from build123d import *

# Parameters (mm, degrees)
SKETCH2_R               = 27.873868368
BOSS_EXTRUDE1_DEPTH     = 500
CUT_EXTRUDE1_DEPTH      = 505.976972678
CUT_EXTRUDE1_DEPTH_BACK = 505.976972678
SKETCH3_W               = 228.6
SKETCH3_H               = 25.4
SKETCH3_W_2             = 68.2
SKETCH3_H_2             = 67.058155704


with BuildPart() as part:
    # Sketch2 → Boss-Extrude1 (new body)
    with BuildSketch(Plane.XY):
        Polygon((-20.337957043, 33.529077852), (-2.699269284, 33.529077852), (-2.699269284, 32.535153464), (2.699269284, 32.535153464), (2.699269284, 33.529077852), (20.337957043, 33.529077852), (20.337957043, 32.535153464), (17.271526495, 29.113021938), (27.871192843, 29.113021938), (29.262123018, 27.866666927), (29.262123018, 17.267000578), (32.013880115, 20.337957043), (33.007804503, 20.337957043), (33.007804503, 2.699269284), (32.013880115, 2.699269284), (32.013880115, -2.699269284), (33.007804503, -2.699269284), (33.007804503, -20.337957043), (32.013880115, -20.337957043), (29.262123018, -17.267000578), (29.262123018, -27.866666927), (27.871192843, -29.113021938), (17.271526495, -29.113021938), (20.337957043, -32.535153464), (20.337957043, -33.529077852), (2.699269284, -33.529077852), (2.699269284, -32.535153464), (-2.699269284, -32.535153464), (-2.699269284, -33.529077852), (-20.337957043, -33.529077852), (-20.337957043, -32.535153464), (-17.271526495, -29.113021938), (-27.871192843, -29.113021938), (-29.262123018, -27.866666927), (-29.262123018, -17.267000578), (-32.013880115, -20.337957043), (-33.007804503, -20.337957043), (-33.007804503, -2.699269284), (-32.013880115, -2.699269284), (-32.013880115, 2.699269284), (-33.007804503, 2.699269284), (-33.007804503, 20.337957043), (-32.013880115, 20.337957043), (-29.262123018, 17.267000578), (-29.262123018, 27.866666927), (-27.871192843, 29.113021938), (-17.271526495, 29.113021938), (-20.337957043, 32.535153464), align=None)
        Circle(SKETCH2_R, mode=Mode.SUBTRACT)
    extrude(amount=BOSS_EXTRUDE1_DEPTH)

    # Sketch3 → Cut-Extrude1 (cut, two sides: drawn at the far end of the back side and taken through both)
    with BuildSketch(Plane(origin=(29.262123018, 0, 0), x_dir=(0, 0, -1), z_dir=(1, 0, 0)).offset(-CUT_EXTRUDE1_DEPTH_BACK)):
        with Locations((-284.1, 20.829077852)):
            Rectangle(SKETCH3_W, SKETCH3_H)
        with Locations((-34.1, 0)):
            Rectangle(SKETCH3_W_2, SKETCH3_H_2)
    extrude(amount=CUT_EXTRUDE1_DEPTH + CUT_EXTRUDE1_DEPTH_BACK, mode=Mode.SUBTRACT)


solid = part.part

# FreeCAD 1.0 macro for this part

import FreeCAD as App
import Part
import Sketcher
from FreeCAD import Vector

doc = App.newDocument("Part")
params = doc.addObject("Spreadsheet::Sheet", "Params")
for row, (alias, value) in enumerate([
    ("pad1_length", "500 mm"),
    ("sketch2_width", "25.4 mm"),
    ("sketch2_height", "228.6 mm"),
    ("sketch2_height2", "68.2 mm"),
], start=1):
    params.set(f"A{row}", alias)
    params.set(f"B{row}", "=" + value)
    params.setAlias(f"B{row}", alias)

body = doc.addObject("PartDesign::Body", "Body")

sketch1 = doc.addObject("Sketcher::SketchObject", "Sketch")
body.addObject(sketch1)
sketch1.AttachmentSupport = (doc.XY_Plane, [""])
sketch1.MapMode = "FlatFace"
sketch1.addGeometry([
    Part.LineSegment(Vector(-2.7, 33.5, 0), Vector(-20.3, 33.5, 0)),
    Part.LineSegment(Vector(-20.3, 33.5, 0), Vector(-20.3, 32.5, 0)),
    Part.LineSegment(Vector(-20.3, 32.5, 0), Vector(-17.3, 29.1, 0)),
    Part.LineSegment(Vector(-17.3, 29.1, 0), Vector(-27.9, 29.1, 0)),
    Part.LineSegment(Vector(-27.9, 29.1, 0), Vector(-29.3, 27.9, 0)),
    Part.LineSegment(Vector(-29.3, 27.9, 0), Vector(-29.3, 17.3, 0)),
    Part.LineSegment(Vector(-29.3, 17.3, 0), Vector(-32, 20.3, 0)),
    Part.LineSegment(Vector(-32, 20.3, 0), Vector(-33, 20.3, 0)),
    Part.LineSegment(Vector(-33, 20.3, 0), Vector(-33, 2.7, 0)),
    Part.LineSegment(Vector(-33, 2.7, 0), Vector(-32, 2.7, 0)),
    Part.LineSegment(Vector(-32, 2.7, 0), Vector(-32, -2.7, 0)),
    Part.LineSegment(Vector(-32, -2.7, 0), Vector(-33, -2.7, 0)),
    Part.LineSegment(Vector(-33, -2.7, 0), Vector(-33, -20.3, 0)),
    Part.LineSegment(Vector(-33, -20.3, 0), Vector(-32, -20.3, 0)),
    Part.LineSegment(Vector(-32, -20.3, 0), Vector(-29.3, -17.3, 0)),
    Part.LineSegment(Vector(-29.3, -17.3, 0), Vector(-29.3, -27.9, 0)),
    Part.LineSegment(Vector(-29.3, -27.9, 0), Vector(-27.9, -29.1, 0)),
    Part.LineSegment(Vector(-27.9, -29.1, 0), Vector(-17.3, -29.1, 0)),
    Part.LineSegment(Vector(-17.3, -29.1, 0), Vector(-20.3, -32.5, 0)),
    Part.LineSegment(Vector(-20.3, -32.5, 0), Vector(-20.3, -33.5, 0)),
    Part.LineSegment(Vector(-20.3, -33.5, 0), Vector(-2.7, -33.5, 0)),
    Part.LineSegment(Vector(-2.7, -33.5, 0), Vector(-2.7, -32.5, 0)),
    Part.LineSegment(Vector(-2.7, -32.5, 0), Vector(2.7, -32.5, 0)),
    Part.LineSegment(Vector(2.7, -32.5, 0), Vector(2.7, -33.5, 0)),
    Part.LineSegment(Vector(2.7, -33.5, 0), Vector(20.3, -33.5, 0)),
    Part.LineSegment(Vector(20.3, -33.5, 0), Vector(20.3, -32.5, 0)),
    Part.LineSegment(Vector(20.3, -32.5, 0), Vector(17.3, -29.1, 0)),
    Part.LineSegment(Vector(17.3, -29.1, 0), Vector(27.9, -29.1, 0)),
    Part.LineSegment(Vector(27.9, -29.1, 0), Vector(29.3, -27.9, 0)),
    Part.LineSegment(Vector(29.3, -27.9, 0), Vector(29.3, -17.3, 0)),
    Part.LineSegment(Vector(29.3, -17.3, 0), Vector(32, -20.3, 0)),
    Part.LineSegment(Vector(32, -20.3, 0), Vector(33, -20.3, 0)),
    Part.LineSegment(Vector(33, -20.3, 0), Vector(33, -2.7, 0)),
    Part.LineSegment(Vector(33, -2.7, 0), Vector(32, -2.7, 0)),
    Part.LineSegment(Vector(32, -2.7, 0), Vector(32, 2.7, 0)),
    Part.LineSegment(Vector(32, 2.7, 0), Vector(33, 2.7, 0)),
    Part.LineSegment(Vector(33, 2.7, 0), Vector(33, 20.3, 0)),
    Part.LineSegment(Vector(33, 20.3, 0), Vector(32, 20.3, 0)),
    Part.LineSegment(Vector(32, 20.3, 0), Vector(29.3, 17.3, 0)),
    Part.LineSegment(Vector(29.3, 17.3, 0), Vector(29.3, 27.9, 0)),
    Part.LineSegment(Vector(29.3, 27.9, 0), Vector(27.9, 29.1, 0)),
    Part.LineSegment(Vector(27.9, 29.1, 0), Vector(17.3, 29.1, 0)),
    Part.LineSegment(Vector(17.3, 29.1, 0), Vector(20.3, 32.5, 0)),
    Part.LineSegment(Vector(20.3, 32.5, 0), Vector(20.3, 33.5, 0)),
    Part.LineSegment(Vector(20.3, 33.5, 0), Vector(2.7, 33.5, 0)),
    Part.LineSegment(Vector(2.7, 33.5, 0), Vector(2.7, 32.5, 0)),
    Part.LineSegment(Vector(2.7, 32.5, 0), Vector(-2.7, 32.5, 0)),
    Part.LineSegment(Vector(-2.7, 32.5, 0), Vector(-2.7, 33.5, 0)),
    Part.Circle(Vector(0, 0, 0), Vector(0, 0, 1), 27.9),
], False)
sketch1.addConstraint([
    Sketcher.Constraint("Coincident", 0, 2, 1, 1),
    Sketcher.Constraint("Coincident", 1, 2, 2, 1),
    Sketcher.Constraint("Coincident", 2, 2, 3, 1),
    Sketcher.Constraint("Coincident", 3, 2, 4, 1),
    Sketcher.Constraint("Coincident", 4, 2, 5, 1),
    Sketcher.Constraint("Coincident", 5, 2, 6, 1),
    Sketcher.Constraint("Coincident", 6, 2, 7, 1),
    Sketcher.Constraint("Coincident", 7, 2, 8, 1),
    Sketcher.Constraint("Coincident", 8, 2, 9, 1),
    Sketcher.Constraint("Coincident", 9, 2, 10, 1),
    Sketcher.Constraint("Coincident", 10, 2, 11, 1),
    Sketcher.Constraint("Coincident", 11, 2, 12, 1),
    Sketcher.Constraint("Coincident", 12, 2, 13, 1),
    Sketcher.Constraint("Coincident", 13, 2, 14, 1),
    Sketcher.Constraint("Coincident", 14, 2, 15, 1),
    Sketcher.Constraint("Coincident", 15, 2, 16, 1),
    Sketcher.Constraint("Coincident", 16, 2, 17, 1),
    Sketcher.Constraint("Coincident", 17, 2, 18, 1),
    Sketcher.Constraint("Coincident", 18, 2, 19, 1),
    Sketcher.Constraint("Coincident", 19, 2, 20, 1),
    Sketcher.Constraint("Coincident", 20, 2, 21, 1),
    Sketcher.Constraint("Coincident", 21, 2, 22, 1),
    Sketcher.Constraint("Coincident", 22, 2, 23, 1),
    Sketcher.Constraint("Coincident", 23, 2, 24, 1),
    Sketcher.Constraint("Coincident", 24, 2, 25, 1),
    Sketcher.Constraint("Coincident", 25, 2, 26, 1),
    Sketcher.Constraint("Coincident", 26, 2, 27, 1),
    Sketcher.Constraint("Coincident", 27, 2, 28, 1),
    Sketcher.Constraint("Coincident", 28, 2, 29, 1),
    Sketcher.Constraint("Coincident", 29, 2, 30, 1),
    Sketcher.Constraint("Coincident", 30, 2, 31, 1),
    Sketcher.Constraint("Coincident", 31, 2, 32, 1),
    Sketcher.Constraint("Coincident", 32, 2, 33, 1),
    Sketcher.Constraint("Coincident", 33, 2, 34, 1),
    Sketcher.Constraint("Coincident", 34, 2, 35, 1),
    Sketcher.Constraint("Coincident", 35, 2, 36, 1),
    Sketcher.Constraint("Coincident", 36, 2, 37, 1),
    Sketcher.Constraint("Coincident", 37, 2, 38, 1),
    Sketcher.Constraint("Coincident", 38, 2, 39, 1),
    Sketcher.Constraint("Coincident", 39, 2, 40, 1),
    Sketcher.Constraint("Coincident", 40, 2, 41, 1),
    Sketcher.Constraint("Coincident", 41, 2, 42, 1),
    Sketcher.Constraint("Coincident", 42, 2, 43, 1),
    Sketcher.Constraint("Coincident", 43, 2, 44, 1),
    Sketcher.Constraint("Coincident", 44, 2, 45, 1),
    Sketcher.Constraint("Coincident", 45, 2, 46, 1),
    Sketcher.Constraint("Coincident", 46, 2, 47, 1),
    Sketcher.Constraint("Coincident", 47, 2, 0, 1),
    Sketcher.Constraint("Horizontal", 0),
    Sketcher.Constraint("Vertical", 1),
    Sketcher.Constraint("Horizontal", 3),
    Sketcher.Constraint("Vertical", 5),
    Sketcher.Constraint("Horizontal", 7),
    Sketcher.Constraint("Vertical", 8),
    Sketcher.Constraint("Horizontal", 9),
    Sketcher.Constraint("Vertical", 10),
    Sketcher.Constraint("Horizontal", 11),
    Sketcher.Constraint("Vertical", 12),
    Sketcher.Constraint("Horizontal", 13),
    Sketcher.Constraint("Vertical", 15),
    Sketcher.Constraint("Horizontal", 17),
    Sketcher.Constraint("Vertical", 19),
    Sketcher.Constraint("Horizontal", 20),
    Sketcher.Constraint("Vertical", 21),
    Sketcher.Constraint("Horizontal", 22),
    Sketcher.Constraint("Vertical", 23),
    Sketcher.Constraint("Horizontal", 24),
    Sketcher.Constraint("Vertical", 25),
    Sketcher.Constraint("Horizontal", 27),
    Sketcher.Constraint("Vertical", 29),
    Sketcher.Constraint("Horizontal", 31),
    Sketcher.Constraint("Vertical", 32),
    Sketcher.Constraint("Horizontal", 33),
    Sketcher.Constraint("Vertical", 34),
    Sketcher.Constraint("Horizontal", 35),
    Sketcher.Constraint("Vertical", 36),
    Sketcher.Constraint("Horizontal", 37),
    Sketcher.Constraint("Vertical", 39),
    Sketcher.Constraint("Horizontal", 41),
    Sketcher.Constraint("Vertical", 43),
    Sketcher.Constraint("Horizontal", 44),
    Sketcher.Constraint("Vertical", 45),
    Sketcher.Constraint("Horizontal", 46),
    Sketcher.Constraint("Vertical", 47),
    Sketcher.Constraint("Coincident", 48, 3, -1, 1),
    Sketcher.Constraint("Symmetric", 0, 2, 24, 2, -1, 1),
    Sketcher.Constraint("Symmetric", 2, 2, 26, 2, -1, 1),
    Sketcher.Constraint("Symmetric", 4, 2, 28, 2, -1, 1),
    Sketcher.Constraint("Symmetric", 6, 2, 30, 2, -1, 1),
    Sketcher.Constraint("Symmetric", 8, 2, 32, 2, -1, 1),
    Sketcher.Constraint("Symmetric", 10, 2, 34, 2, -1, 1),
    Sketcher.Constraint("Symmetric", 12, 2, 36, 2, -1, 1),
    Sketcher.Constraint("Symmetric", 14, 2, 38, 2, -1, 1),
    Sketcher.Constraint("Symmetric", 16, 2, 40, 2, -1, 1),
    Sketcher.Constraint("Symmetric", 18, 2, 42, 2, -1, 1),
    Sketcher.Constraint("Symmetric", 20, 2, 44, 2, -1, 1),
    Sketcher.Constraint("Symmetric", 22, 2, 46, 2, -1, 1),
    Sketcher.Constraint("Symmetric", 20, 2, 23, 2, -2),
    Sketcher.Constraint("Symmetric", 18, 2, 25, 2, -2),
    Sketcher.Constraint("Symmetric", 17, 2, 26, 2, -2),
    Sketcher.Constraint("Symmetric", 15, 2, 28, 2, -2),
    Sketcher.Constraint("Symmetric", 13, 2, 30, 2, -2),
    Sketcher.Constraint("Symmetric", 11, 2, 32, 2, -2),
    Sketcher.Constraint("Perpendicular", 2, 4),
    Sketcher.Constraint("Perpendicular", 4, 6),
    Sketcher.Constraint("Perpendicular", 14, 16),
    Sketcher.Constraint("Perpendicular", 16, 18),
    Sketcher.Constraint("Parallel", 6, 26),
    Sketcher.Constraint("Perpendicular", 26, 28),
    Sketcher.Constraint("Perpendicular", 28, 30),
    Sketcher.Constraint("Parallel", 18, 38),
    Sketcher.Constraint("Perpendicular", 38, 40),
    Sketcher.Constraint("Perpendicular", 40, 42),
    Sketcher.Constraint("Horizontal", 18, 2, 21, 2),
    Sketcher.Constraint("Vertical", 6, 2, 9, 2),
    Sketcher.Constraint("Equal", 37, 1),
    Sketcher.Constraint("Equal", 41, 5),
    Sketcher.Constraint("Equal", 44, 8),
    Sketcher.Constraint("Equal", 46, 10),
    Sketcher.Constraint("Diameter", 48, 55.747737),
    Sketcher.Constraint("DistanceY", -1, 1, 5, 2, 17.267001),
    Sketcher.Constraint("DistanceX", 22, 1, 22, 2, 5.398539),
    Sketcher.Constraint("DistanceX", 0, 2, 0, 1, 17.638688),
    Sketcher.Constraint("DistanceX", 3, 2, 3, 1, 10.599666),
    Sketcher.Constraint("DistanceX", 7, 2, 7, 1, 0.993924),
    Sketcher.Constraint("DistanceY", -1, 1, 2, 2, 29.113022),
    Sketcher.Constraint("DistanceX", 6, 2, -1, 1, 32.01388),
    Sketcher.Constraint("DistanceX", 1, 2, 2, 2, 3.066431),
])
pad1 = doc.addObject("PartDesign::Pad", "Pad")
body.addObject(pad1)
pad1.Profile = sketch1
pad1.setExpression("Length", "Params.pad1_length")

sketch2 = doc.addObject("Sketcher::SketchObject", "Sketch001")
body.addObject(sketch2)
sketch2.AttachmentSupport = (doc.YZ_Plane, [""])
sketch2.MapMode = "FlatFace"
sketch2.AttachmentOffset = App.Placement(Vector(0, 0, 29.262123), App.Rotation())
sketch2.addGeometry([
    Part.LineSegment(Vector(34, 398, 0), Vector(8, 398, 0)),
    Part.LineSegment(Vector(8, 398, 0), Vector(8, 170, 0)),
    Part.LineSegment(Vector(8, 170, 0), Vector(34, 170, 0)),
    Part.LineSegment(Vector(34, 170, 0), Vector(34, 398, 0)),
    Part.LineSegment(Vector(34, 68, 0), Vector(-34, 68, 0)),
    Part.LineSegment(Vector(-34, 68, 0), Vector(-34, 0, 0)),
    Part.LineSegment(Vector(-34, 0, 0), Vector(34, 0, 0)),
    Part.LineSegment(Vector(34, 0, 0), Vector(34, 68, 0)),
], False)
sketch2.addConstraint([
    Sketcher.Constraint("Coincident", 0, 2, 1, 1),
    Sketcher.Constraint("Coincident", 1, 2, 2, 1),
    Sketcher.Constraint("Coincident", 2, 2, 3, 1),
    Sketcher.Constraint("Coincident", 3, 2, 0, 1),
    Sketcher.Constraint("Coincident", 4, 2, 5, 1),
    Sketcher.Constraint("Coincident", 5, 2, 6, 1),
    Sketcher.Constraint("Coincident", 6, 2, 7, 1),
    Sketcher.Constraint("Coincident", 7, 2, 4, 1),
    Sketcher.Constraint("Horizontal", 0),
    Sketcher.Constraint("Vertical", 1),
    Sketcher.Constraint("Horizontal", 2),
    Sketcher.Constraint("Vertical", 3),
    Sketcher.Constraint("Horizontal", 4),
    Sketcher.Constraint("Vertical", 5),
    Sketcher.Constraint("Horizontal", 6),
    Sketcher.Constraint("Vertical", 7),
    Sketcher.Constraint("Symmetric", 5, 2, 6, 2, -1, 1),
    Sketcher.Constraint("Vertical", 3, 2, 6, 2),
    Sketcher.Constraint("DistanceX", 0, 2, 0, 1, 25.4),
    Sketcher.Constraint("DistanceY", 1, 2, 1, 1, 228.6),
    Sketcher.Constraint("DistanceY", 5, 2, 5, 1, 68.2),
    Sketcher.Constraint("DistanceY", -1, 1, 0, 2, 398.4),
    Sketcher.Constraint("DistanceX", 4, 2, 4, 1, 67.058156),
])
sketch2.setExpression("Constraints[18]", "Params.sketch2_width")
sketch2.setExpression("Constraints[19]", "Params.sketch2_height")
sketch2.setExpression("Constraints[20]", "Params.sketch2_height2")
pocket1 = doc.addObject("PartDesign::Pocket", "Pocket")
body.addObject(pocket1)
pocket1.Profile = sketch2
pocket1.Type = "ThroughAll"
pocket1.Midplane = True

doc.recompute()
